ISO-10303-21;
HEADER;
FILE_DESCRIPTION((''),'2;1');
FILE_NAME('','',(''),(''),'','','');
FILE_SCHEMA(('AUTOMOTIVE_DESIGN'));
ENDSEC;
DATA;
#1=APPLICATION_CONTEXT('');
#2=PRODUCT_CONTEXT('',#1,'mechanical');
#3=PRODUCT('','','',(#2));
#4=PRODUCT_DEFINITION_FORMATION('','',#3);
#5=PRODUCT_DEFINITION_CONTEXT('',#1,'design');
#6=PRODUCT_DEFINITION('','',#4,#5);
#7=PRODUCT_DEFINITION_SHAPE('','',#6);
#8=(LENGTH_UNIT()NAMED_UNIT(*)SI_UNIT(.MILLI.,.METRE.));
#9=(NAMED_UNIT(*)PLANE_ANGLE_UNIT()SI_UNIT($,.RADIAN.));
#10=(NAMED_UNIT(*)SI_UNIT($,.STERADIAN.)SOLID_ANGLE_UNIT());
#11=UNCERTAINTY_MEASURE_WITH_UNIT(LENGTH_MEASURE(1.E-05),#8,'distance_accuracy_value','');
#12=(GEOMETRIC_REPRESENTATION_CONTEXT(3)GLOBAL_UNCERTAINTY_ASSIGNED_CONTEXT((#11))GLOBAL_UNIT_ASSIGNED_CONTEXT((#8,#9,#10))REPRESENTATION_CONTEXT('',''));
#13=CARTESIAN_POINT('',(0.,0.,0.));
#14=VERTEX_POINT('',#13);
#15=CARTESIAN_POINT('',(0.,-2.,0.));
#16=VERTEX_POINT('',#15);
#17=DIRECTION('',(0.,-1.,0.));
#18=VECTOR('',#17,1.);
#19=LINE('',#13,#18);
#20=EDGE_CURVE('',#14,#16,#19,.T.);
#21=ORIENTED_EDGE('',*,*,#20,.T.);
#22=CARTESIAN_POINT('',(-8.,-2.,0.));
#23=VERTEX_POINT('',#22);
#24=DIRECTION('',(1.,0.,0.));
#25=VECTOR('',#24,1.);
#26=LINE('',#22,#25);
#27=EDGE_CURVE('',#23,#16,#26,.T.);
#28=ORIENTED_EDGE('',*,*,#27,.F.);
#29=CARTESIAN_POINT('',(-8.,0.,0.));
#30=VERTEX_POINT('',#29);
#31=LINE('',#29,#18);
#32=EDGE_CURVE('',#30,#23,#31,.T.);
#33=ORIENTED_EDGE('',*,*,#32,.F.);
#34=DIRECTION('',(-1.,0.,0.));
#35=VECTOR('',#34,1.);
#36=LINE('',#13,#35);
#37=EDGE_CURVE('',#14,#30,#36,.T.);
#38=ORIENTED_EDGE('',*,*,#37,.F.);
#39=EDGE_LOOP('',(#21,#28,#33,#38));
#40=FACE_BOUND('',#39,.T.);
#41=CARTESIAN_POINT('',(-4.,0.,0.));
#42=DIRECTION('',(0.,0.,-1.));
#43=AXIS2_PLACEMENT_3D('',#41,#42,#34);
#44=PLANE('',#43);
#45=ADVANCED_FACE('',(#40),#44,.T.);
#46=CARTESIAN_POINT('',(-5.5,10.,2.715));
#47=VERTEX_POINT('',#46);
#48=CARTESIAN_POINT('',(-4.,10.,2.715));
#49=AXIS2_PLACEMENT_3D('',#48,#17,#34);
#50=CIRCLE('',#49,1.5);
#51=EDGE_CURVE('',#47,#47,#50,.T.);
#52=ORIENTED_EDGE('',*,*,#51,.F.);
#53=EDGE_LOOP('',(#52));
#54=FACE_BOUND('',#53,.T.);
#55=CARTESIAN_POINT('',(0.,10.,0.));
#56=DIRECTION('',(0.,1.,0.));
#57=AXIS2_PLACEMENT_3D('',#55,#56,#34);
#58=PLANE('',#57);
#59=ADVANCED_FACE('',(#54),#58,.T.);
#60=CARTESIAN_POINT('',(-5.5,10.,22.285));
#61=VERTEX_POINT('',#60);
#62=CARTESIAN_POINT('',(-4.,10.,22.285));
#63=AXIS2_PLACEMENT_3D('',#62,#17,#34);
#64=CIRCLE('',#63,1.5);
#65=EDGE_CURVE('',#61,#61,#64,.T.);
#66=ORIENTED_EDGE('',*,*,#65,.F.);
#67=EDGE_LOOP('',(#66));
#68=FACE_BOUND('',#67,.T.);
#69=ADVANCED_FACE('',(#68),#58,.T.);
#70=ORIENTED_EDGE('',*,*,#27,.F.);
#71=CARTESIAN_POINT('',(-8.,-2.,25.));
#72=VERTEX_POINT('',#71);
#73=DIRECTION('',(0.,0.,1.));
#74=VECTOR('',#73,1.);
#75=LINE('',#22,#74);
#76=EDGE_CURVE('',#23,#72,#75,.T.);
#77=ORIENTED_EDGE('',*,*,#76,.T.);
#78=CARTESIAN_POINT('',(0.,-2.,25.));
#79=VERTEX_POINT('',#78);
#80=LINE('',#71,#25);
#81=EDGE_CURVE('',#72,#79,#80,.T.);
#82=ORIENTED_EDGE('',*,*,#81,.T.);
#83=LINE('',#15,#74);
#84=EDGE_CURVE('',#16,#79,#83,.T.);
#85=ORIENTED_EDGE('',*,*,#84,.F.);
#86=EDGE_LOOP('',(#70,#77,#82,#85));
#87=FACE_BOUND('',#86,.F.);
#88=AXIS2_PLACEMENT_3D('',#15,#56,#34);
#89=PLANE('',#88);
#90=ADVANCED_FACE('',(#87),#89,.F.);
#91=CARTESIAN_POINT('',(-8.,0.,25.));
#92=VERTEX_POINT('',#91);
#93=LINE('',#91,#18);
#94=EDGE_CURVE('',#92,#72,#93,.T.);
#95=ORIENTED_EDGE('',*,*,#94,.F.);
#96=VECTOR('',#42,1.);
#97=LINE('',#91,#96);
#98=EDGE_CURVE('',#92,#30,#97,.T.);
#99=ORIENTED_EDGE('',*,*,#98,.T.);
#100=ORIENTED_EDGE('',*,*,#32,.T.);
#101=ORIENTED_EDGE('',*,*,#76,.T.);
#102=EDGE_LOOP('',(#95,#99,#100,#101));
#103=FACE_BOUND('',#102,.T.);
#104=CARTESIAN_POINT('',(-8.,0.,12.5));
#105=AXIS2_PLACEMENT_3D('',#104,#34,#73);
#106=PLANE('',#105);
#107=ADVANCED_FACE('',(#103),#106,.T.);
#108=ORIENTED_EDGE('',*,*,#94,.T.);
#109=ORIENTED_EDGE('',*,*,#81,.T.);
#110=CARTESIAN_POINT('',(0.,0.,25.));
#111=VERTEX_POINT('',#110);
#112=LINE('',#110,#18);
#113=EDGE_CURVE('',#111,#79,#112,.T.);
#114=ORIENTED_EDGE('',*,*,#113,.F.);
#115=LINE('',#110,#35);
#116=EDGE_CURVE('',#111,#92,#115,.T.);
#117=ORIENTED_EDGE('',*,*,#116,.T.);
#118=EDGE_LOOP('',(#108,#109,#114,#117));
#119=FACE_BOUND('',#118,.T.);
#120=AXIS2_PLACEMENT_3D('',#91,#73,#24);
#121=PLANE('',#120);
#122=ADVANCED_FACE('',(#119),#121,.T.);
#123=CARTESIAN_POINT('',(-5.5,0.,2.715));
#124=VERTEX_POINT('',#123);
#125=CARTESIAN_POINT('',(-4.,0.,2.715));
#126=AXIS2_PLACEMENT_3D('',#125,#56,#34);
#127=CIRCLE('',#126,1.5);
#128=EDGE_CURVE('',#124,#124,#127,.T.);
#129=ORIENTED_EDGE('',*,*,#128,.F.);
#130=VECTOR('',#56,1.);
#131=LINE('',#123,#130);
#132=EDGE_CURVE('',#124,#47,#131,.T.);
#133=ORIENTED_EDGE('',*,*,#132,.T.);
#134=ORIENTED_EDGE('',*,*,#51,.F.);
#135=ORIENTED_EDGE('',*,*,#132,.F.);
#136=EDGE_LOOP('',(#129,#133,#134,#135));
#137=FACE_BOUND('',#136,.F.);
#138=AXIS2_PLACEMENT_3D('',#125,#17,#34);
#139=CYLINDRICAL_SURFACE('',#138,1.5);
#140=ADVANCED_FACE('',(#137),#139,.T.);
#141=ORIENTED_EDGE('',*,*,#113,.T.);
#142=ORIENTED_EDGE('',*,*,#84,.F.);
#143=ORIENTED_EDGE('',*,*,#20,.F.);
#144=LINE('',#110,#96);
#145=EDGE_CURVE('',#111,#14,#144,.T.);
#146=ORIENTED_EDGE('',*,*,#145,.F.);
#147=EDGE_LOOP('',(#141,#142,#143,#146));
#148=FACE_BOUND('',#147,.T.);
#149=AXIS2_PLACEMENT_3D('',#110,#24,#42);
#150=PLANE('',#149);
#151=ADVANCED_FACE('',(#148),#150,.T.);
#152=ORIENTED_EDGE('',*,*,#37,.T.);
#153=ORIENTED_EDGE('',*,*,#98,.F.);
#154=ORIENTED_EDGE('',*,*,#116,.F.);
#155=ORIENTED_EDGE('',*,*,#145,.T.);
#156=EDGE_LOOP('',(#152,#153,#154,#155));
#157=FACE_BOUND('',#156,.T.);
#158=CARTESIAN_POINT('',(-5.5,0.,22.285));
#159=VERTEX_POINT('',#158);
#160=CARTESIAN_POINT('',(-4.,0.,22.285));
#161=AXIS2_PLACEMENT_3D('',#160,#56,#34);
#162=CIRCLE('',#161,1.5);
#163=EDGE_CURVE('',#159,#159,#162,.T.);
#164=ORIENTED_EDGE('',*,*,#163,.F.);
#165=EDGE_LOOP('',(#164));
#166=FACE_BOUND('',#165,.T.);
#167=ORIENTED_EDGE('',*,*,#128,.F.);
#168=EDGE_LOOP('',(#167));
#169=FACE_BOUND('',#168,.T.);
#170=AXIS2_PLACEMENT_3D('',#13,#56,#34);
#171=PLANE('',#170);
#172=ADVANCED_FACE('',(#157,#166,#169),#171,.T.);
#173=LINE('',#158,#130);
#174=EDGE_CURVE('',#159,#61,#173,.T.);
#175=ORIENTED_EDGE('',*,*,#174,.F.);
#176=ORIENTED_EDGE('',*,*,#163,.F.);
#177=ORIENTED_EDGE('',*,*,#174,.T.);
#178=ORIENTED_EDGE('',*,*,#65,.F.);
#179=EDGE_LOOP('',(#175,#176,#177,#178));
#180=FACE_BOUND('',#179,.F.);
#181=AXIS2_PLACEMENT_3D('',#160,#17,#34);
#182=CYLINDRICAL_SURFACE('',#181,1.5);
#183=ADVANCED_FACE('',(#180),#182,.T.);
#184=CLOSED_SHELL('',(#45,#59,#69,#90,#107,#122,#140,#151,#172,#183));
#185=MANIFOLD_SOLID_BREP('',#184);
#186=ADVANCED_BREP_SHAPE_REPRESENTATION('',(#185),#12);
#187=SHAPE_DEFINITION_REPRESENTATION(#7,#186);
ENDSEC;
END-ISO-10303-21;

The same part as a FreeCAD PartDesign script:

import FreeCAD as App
import Part
import Sketcher
from FreeCAD import Vector
Q = App.Units.Quantity

doc = App.newDocument("Part")
body = doc.addObject("PartDesign::Body", "Body")
body.AllowCompound = True

sketch1 = doc.addObject("Sketcher::SketchObject", "Sketch")
body.addObject(sketch1)
sketch1.AttachmentSupport = (doc.XZ_Plane, [""])
sketch1.MapMode = "FlatFace"
sketch1.addGeometry(Part.Circle(Vector(-4, 22.285, 0), Vector(0, 0, 1), 1.5), False)
sketch1.addGeometry(Part.Circle(Vector(-4, 2.715, 0), Vector(0, 0, 1), 1.5), False)
sketch1.addConstraint(Sketcher.Constraint("Equal", 0, 1))
sketch1.addConstraint(Sketcher.Constraint("Vertical", 0, 3, 1, 3))
sketch1.addConstraint(Sketcher.Constraint("Diameter", 0, Q("3 mm")))
sketch1.addConstraint(Sketcher.Constraint("DistanceY", 1, 3, 0, 3, Q("19.57 mm")))
sketch1.addConstraint(Sketcher.Constraint("DistanceX", 0, 3, -1, 1, Q("4 mm")))
sketch1.addConstraint(Sketcher.Constraint("DistanceY", -1, 1, 0, 3, Q("22.285 mm")))
pad1 = doc.addObject("PartDesign::Pad", "Pad")
body.addObject(pad1)
pad1.Profile = sketch1
pad1.Length = 10
pad1.Reversed = True

sketch2 = doc.addObject("Sketcher::SketchObject", "Sketch001")
body.addObject(sketch2)
sketch2.AttachmentSupport = (doc.XZ_Plane, [""])
sketch2.MapMode = "FlatFace"
sketch2.addGeometry(Part.LineSegment(Vector(-8, 25, 0), Vector(0, 25, 0)), False)
sketch2.addGeometry(Part.LineSegment(Vector(0, 25, 0), Vector(0, 0, 0)), False)
sketch2.addGeometry(Part.LineSegment(Vector(0, 0, 0), Vector(-8, 0, 0)), False)
sketch2.addGeometry(Part.LineSegment(Vector(-8, 0, 0), Vector(-8, 25, 0)), False)
sketch2.addConstraint(Sketcher.Constraint("Coincident", 0, 2, 1, 1))
sketch2.addConstraint(Sketcher.Constraint("Coincident", 1, 2, 2, 1))
sketch2.addConstraint(Sketcher.Constraint("Coincident", 2, 2, 3, 1))
sketch2.addConstraint(Sketcher.Constraint("Coincident", 3, 2, 0, 1))
sketch2.addConstraint(Sketcher.Constraint("Horizontal", 0))
sketch2.addConstraint(Sketcher.Constraint("Vertical", 1))
sketch2.addConstraint(Sketcher.Constraint("Horizontal", 2))
sketch2.addConstraint(Sketcher.Constraint("Vertical", 3))
sketch2.addConstraint(Sketcher.Constraint("Coincident", 1, 2, -1, 1))
sketch2.addConstraint(Sketcher.Constraint("DistanceX", 0, 1, 0, 2, Q("8 mm")))
sketch2.addConstraint(Sketcher.Constraint("DistanceY", 1, 2, 1, 1, Q("25 mm")))
pad2 = doc.addObject("PartDesign::Pad", "Pad001")
body.addObject(pad2)
pad2.Profile = sketch2
pad2.Length = 2

doc.recompute()
